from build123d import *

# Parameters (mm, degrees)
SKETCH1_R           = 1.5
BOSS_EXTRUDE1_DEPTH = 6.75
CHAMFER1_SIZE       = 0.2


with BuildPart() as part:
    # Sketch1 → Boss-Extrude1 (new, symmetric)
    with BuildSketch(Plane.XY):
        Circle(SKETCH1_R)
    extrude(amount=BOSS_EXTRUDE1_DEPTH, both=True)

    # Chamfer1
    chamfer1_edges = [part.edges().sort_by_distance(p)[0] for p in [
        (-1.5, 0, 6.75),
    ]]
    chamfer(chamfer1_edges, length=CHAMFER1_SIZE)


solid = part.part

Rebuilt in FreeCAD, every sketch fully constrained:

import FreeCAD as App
import Part
import Sketcher
from FreeCAD import Vector


def edges_at(feature, points):
    """Names of the edges that pass closest to the given points."""
    edges = feature.Shape.Edges
    near = lambda p: min(range(len(edges)), key=lambda i: edges[i].distToShape(Part.Vertex(*p))[0])
    return sorted({f"Edge{near(p) + 1}" for p in points})

doc = App.newDocument("Part")
body = doc.addObject("PartDesign::Body", "Body")

# Sketch on XY plane
sketch1 = body.newObject("Sketcher::SketchObject", "Sketch")
sketch1.AttachmentSupport = (doc.getObject("XY_Plane"), [""])
sketch1.MapMode = "FlatFace"
sketch1.addGeometry(Part.Circle(Vector(0, 0, 0), Vector(0, 0, 1), 1.5), False)
sketch1.addConstraint([
    Sketcher.Constraint("Coincident", 0, 3, -1, 1),
    Sketcher.Constraint("Diameter", 0, 3.0),
])
pad1 = body.newObject("PartDesign::Pad", "Pad")
pad1.Profile = sketch1
pad1.Length = 13.5
pad1.Midplane = True
doc.recompute()

chamfer = body.newObject("PartDesign::Chamfer", "Chamfer")
chamfer.Base = (pad1, edges_at(pad1, [(-1.5, 0, 6.75)]))
chamfer.Size = 0.2

doc.recompute()
